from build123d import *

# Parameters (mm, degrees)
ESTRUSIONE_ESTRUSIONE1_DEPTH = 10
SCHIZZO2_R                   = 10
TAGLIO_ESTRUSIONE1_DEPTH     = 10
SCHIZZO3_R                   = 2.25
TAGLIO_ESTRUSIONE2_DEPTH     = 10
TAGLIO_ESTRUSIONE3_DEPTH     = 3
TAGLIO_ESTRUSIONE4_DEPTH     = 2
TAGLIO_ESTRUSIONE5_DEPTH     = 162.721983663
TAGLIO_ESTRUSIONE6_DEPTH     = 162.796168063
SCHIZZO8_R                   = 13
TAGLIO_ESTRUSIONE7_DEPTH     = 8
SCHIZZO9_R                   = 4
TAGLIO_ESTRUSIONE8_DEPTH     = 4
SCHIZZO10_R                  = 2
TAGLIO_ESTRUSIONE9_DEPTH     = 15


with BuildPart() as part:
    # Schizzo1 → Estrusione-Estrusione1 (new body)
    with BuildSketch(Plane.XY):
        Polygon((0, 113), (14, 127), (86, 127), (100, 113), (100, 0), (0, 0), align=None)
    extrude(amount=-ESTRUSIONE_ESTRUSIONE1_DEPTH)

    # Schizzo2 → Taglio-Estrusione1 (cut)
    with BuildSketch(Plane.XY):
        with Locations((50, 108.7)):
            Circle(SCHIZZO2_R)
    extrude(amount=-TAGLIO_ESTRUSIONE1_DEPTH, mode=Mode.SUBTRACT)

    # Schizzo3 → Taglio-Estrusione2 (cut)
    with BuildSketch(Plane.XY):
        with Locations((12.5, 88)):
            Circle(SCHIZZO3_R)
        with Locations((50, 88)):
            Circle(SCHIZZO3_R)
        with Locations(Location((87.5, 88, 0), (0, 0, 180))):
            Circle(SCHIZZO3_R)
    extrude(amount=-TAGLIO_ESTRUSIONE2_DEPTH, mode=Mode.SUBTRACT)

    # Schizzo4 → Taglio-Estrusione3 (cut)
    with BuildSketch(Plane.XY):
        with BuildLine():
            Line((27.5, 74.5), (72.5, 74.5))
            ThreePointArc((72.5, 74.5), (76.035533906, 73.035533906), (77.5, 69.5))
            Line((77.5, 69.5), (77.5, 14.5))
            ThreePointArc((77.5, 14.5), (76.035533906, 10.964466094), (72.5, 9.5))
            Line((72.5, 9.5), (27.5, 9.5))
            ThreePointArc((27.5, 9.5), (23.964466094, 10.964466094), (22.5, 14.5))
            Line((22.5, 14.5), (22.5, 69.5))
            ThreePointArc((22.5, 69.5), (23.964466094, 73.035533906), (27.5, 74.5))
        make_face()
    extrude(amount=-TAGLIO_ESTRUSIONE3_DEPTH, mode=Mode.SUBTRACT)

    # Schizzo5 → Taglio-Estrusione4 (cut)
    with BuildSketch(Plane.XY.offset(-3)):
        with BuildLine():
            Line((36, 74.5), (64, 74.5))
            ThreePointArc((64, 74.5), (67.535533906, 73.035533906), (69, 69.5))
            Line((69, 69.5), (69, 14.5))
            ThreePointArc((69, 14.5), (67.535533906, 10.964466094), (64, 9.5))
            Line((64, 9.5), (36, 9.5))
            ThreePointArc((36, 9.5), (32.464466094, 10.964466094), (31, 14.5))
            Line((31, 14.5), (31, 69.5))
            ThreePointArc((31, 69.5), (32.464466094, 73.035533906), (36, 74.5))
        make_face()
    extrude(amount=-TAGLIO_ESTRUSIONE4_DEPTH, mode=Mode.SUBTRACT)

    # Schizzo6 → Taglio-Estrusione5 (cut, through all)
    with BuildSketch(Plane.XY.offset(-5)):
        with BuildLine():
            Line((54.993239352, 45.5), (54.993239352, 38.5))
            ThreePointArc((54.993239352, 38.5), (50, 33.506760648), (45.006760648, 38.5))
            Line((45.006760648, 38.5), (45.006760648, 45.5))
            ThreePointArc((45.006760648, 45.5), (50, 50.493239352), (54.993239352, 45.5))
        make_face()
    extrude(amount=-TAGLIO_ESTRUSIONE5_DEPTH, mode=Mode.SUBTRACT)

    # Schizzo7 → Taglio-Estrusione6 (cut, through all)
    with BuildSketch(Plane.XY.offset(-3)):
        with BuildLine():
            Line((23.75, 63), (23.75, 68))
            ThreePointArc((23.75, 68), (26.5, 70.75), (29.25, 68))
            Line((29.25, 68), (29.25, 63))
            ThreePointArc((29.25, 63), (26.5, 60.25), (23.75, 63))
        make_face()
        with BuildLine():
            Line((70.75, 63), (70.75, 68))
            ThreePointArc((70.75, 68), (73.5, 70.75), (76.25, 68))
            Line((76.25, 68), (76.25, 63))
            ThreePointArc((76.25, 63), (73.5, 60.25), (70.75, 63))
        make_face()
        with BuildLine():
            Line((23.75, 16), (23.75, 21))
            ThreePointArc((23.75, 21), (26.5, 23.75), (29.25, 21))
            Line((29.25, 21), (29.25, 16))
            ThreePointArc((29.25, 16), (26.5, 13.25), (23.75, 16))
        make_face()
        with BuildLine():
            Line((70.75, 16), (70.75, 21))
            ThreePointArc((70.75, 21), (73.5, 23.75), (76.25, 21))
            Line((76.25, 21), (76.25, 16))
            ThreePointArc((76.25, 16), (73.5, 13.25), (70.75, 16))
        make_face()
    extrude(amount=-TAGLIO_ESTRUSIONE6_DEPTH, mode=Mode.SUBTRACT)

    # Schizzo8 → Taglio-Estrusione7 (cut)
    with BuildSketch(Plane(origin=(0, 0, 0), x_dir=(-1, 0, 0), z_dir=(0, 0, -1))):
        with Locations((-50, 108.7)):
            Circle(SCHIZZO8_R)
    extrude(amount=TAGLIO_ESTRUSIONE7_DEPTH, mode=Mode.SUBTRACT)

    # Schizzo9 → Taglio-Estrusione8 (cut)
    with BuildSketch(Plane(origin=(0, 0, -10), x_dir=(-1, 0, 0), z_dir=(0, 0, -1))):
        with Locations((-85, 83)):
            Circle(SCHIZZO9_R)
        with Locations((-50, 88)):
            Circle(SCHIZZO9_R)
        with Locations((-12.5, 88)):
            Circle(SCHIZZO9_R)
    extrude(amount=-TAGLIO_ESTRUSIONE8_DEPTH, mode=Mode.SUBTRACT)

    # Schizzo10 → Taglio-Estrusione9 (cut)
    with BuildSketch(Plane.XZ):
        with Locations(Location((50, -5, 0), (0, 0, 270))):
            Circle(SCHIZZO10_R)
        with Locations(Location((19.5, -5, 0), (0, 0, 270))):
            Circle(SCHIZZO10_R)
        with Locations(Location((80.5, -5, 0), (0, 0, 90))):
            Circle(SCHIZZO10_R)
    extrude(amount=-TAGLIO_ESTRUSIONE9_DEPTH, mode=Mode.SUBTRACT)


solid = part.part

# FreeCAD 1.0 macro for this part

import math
import FreeCAD as App
import Part
import Sketcher
from FreeCAD import Vector
Q = App.Units.Quantity

doc = App.newDocument("Part")
params = doc.addObject("Spreadsheet::Sheet", "Params")
for row, (alias, value) in enumerate([
    ("sketch1_width", "100 mm"),
    ("sketch1_width2", "72 mm"),
    ("sketch1_height", "113 mm"),
    ("pad1_length", "10 mm"),
    ("sketch2_diameter", "20 mm"),
    ("pocket1_length", "10 mm"),
    ("sketch3_diameter", "4.5 mm"),
    ("pocket2_length", "10 mm"),
    ("sketch4_radius", "5 mm"),
    ("sketch4_width", "45 mm"),
    ("sketch4_height", "55 mm"),
    ("pocket3_length", "3 mm"),
    ("sketch5_radius", "5 mm"),
    ("sketch5_width", "28 mm"),
    ("sketch5_height", "55 mm"),
    ("pocket4_length", "2 mm"),
    ("sketch6_height", "7 mm"),
    ("sketch7_height", "5 mm"),
    ("sketch7_radius", "2.75 mm"),
    ("sketch8_diameter", "26 mm"),
    ("pocket7_length", "8 mm"),
    ("sketch9_diameter", "8 mm"),
    ("pocket8_length", "4 mm"),
    ("sketch10_diameter", "4 mm"),
    ("pocket9_length", "15 mm"),
], start=1):
    params.set(f"A{row}", alias)
    params.set(f"B{row}", "=" + value)
    params.setAlias(f"B{row}", alias)

body = doc.addObject("PartDesign::Body", "Body")

# Sketch on XY plane
sketch1 = body.newObject("Sketcher::SketchObject", "Sketch")
sketch1.AttachmentSupport = (doc.getObject("XY_Plane"), [""])
sketch1.MapMode = "FlatFace"
sketch1.addGeometry([
    Part.LineSegment(Vector(14, 127, 0), Vector(0, 113, 0)),  # 0
    Part.LineSegment(Vector(0, 113, 0), Vector(0, 0, 0)),  # 1
    Part.LineSegment(Vector(0, 0, 0), Vector(100, 0, 0)),  # 2
    Part.LineSegment(Vector(100, 0, 0), Vector(100, 113, 0)),  # 3
    Part.LineSegment(Vector(100, 113, 0), Vector(86, 127, 0)),  # 4
    Part.LineSegment(Vector(86, 127, 0), Vector(14, 127, 0)),  # 5
], False)
sketch1.addConstraint([
    Sketcher.Constraint("Coincident", 0, 2, 1, 1),
    Sketcher.Constraint("Coincident", 1, 2, 2, 1),
    Sketcher.Constraint("Coincident", 2, 2, 3, 1),
    Sketcher.Constraint("Coincident", 3, 2, 4, 1),
    Sketcher.Constraint("Coincident", 4, 2, 5, 1),
    Sketcher.Constraint("Coincident", 5, 2, 0, 1),
    Sketcher.Constraint("Vertical", 1),
    Sketcher.Constraint("Horizontal", 2),
    Sketcher.Constraint("Vertical", 3),
    Sketcher.Constraint("Horizontal", 5),
    Sketcher.Constraint("Coincident", 1, 2, -1, 1),
    Sketcher.Constraint("Perpendicular", 0, 4),
    Sketcher.Constraint("Horizontal", 0, 2, 3, 2),
    Sketcher.Constraint("Equal", 0, 4),
    Sketcher.Constraint("DistanceX", 2, 1, 2, 2, Q("100 mm")),
    Sketcher.Constraint("DistanceX", 5, 2, 5, 1, Q("72 mm")),
    Sketcher.Constraint("DistanceY", 1, 2, 1, 1, Q("113 mm")),
])
sketch1.setExpression("Constraints[14]", "Params.sketch1_width")
sketch1.setExpression("Constraints[15]", "Params.sketch1_width2")
sketch1.setExpression("Constraints[16]", "Params.sketch1_height")
pad1 = body.newObject("PartDesign::Pad", "Pad")
pad1.Profile = sketch1
pad1.setExpression("Length", "Params.pad1_length")
pad1.Reversed = True

# Sketch on XY plane
sketch2 = body.newObject("Sketcher::SketchObject", "Sketch001")
sketch2.AttachmentSupport = (doc.getObject("XY_Plane"), [""])
sketch2.MapMode = "FlatFace"
sketch2.addGeometry(Part.Circle(Vector(50, 109, 0), Vector(0, 0, 1), 10), False)
sketch2.addConstraint([
    Sketcher.Constraint("Diameter", 0, Q("20 mm")),
    Sketcher.Constraint("DistanceX", -1, 1, 0, 3, Q("50 mm")),
    Sketcher.Constraint("DistanceY", -1, 1, 0, 3, Q("108.7 mm")),
])
sketch2.setExpression("Constraints[0]", "Params.sketch2_diameter")
pocket1 = body.newObject("PartDesign::Pocket", "Pocket")
pocket1.Profile = sketch2
pocket1.setExpression("Length", "Params.pocket1_length")

# Sketch on XY plane
sketch3 = body.newObject("Sketcher::SketchObject", "Sketch002")
sketch3.AttachmentSupport = (doc.getObject("XY_Plane"), [""])
sketch3.MapMode = "FlatFace"
sketch3.addGeometry([
    Part.Circle(Vector(12.5, 88, 0), Vector(0, 0, 1), 2.2),
    Part.Circle(Vector(50, 88, 0), Vector(0, 0, 1), 2.2),
    Part.Circle(Vector(87.5, 88, 0), Vector(0, 0, 1), 2.2),
], False)
sketch3.addConstraint([
    Sketcher.Constraint("Equal", 0, 1),
    Sketcher.Constraint("Equal", 1, 2),
    Sketcher.Constraint("Horizontal", 0, 3, 1, 3),
    Sketcher.Constraint("Horizontal", 1, 3, 2, 3),
    Sketcher.Constraint("Diameter", 0, Q("4.5 mm")),
    Sketcher.Constraint("DistanceY", -1, 1, 0, 3, Q("88 mm")),
    Sketcher.Constraint("DistanceX", -1, 1, 1, 3, Q("50 mm")),
    Sketcher.Constraint("DistanceX", 0, 3, 2, 3, Q("75 mm")),
    Sketcher.Constraint("DistanceX", -1, 1, 0, 3, Q("12.5 mm")),
])
sketch3.setExpression("Constraints[4]", "Params.sketch3_diameter")
pocket2 = body.newObject("PartDesign::Pocket", "Pocket001")
pocket2.Profile = sketch3
pocket2.setExpression("Length", "Params.pocket2_length")

# Sketch on XY plane
sketch4 = body.newObject("Sketcher::SketchObject", "Sketch003")
sketch4.AttachmentSupport = (doc.getObject("XY_Plane"), [""])
sketch4.MapMode = "FlatFace"
sketch4.addGeometry([
    Part.LineSegment(Vector(72, 74, 0), Vector(28, 74, 0)),  # 0
    Part.ArcOfCircle(Part.Circle(Vector(28, 70, 0), Vector(0, 0, 1), 5), math.radians(90), math.radians(180)),  # 1
    Part.LineSegment(Vector(22, 70, 0), Vector(22, 14, 0)),  # 2
    Part.ArcOfCircle(Part.Circle(Vector(28, 14, 0), Vector(0, 0, 1), 5), math.radians(180), math.radians(270)),  # 3
    Part.LineSegment(Vector(28, 10, 0), Vector(72, 10, 0)),  # 4
    Part.ArcOfCircle(Part.Circle(Vector(72, 14, 0), Vector(0, 0, 1), 5), math.radians(-90), math.radians(0)),  # 5
    Part.LineSegment(Vector(78, 14, 0), Vector(78, 70, 0)),  # 6
    Part.ArcOfCircle(Part.Circle(Vector(72, 70, 0), Vector(0, 0, 1), 5), math.radians(0), math.radians(90)),  # 7
], False)
sketch4.addConstraint([
    Sketcher.Constraint("Tangent", 0, 2, 1, 1),
    Sketcher.Constraint("Tangent", 1, 2, 2, 1),
    Sketcher.Constraint("Tangent", 2, 2, 3, 1),
    Sketcher.Constraint("Tangent", 3, 2, 4, 1),
    Sketcher.Constraint("Tangent", 4, 2, 5, 1),
    Sketcher.Constraint("Tangent", 5, 2, 6, 1),
    Sketcher.Constraint("Tangent", 6, 2, 7, 1),
    Sketcher.Constraint("Tangent", 7, 2, 0, 1),
    Sketcher.Constraint("Horizontal", 0),
    Sketcher.Constraint("Vertical", 2),
    Sketcher.Constraint("Horizontal", 4),
    Sketcher.Constraint("Vertical", 6),
    Sketcher.Constraint("Equal", 1, 3),
    Sketcher.Constraint("Equal", 3, 5),
    Sketcher.Constraint("Equal", 5, 7),
    Sketcher.Constraint("Radius", 1, Q("5 mm")),
    Sketcher.Constraint("DistanceX", 0, 2, 0, 1, Q("45 mm")),
    Sketcher.Constraint("DistanceY", 2, 2, 2, 1, Q("55 mm")),
    Sketcher.Constraint("DistanceX", -1, 1, 1, 3, Q("27.5 mm")),
    Sketcher.Constraint("DistanceY", -1, 1, 1, 3, Q("69.5 mm")),
])
sketch4.setExpression("Constraints[15]", "Params.sketch4_radius")
sketch4.setExpression("Constraints[16]", "Params.sketch4_width")
sketch4.setExpression("Constraints[17]", "Params.sketch4_height")
pocket3 = body.newObject("PartDesign::Pocket", "Pocket002")
pocket3.Profile = sketch4
pocket3.setExpression("Length", "Params.pocket3_length")

# Sketch on XY plane
sketch5 = body.newObject("Sketcher::SketchObject", "Sketch004")
sketch5.AttachmentSupport = (doc.getObject("XY_Plane"), [""])
sketch5.MapMode = "FlatFace"
sketch5.AttachmentOffset = App.Placement(Vector(0, 0, -3), App.Rotation())
sketch5.addGeometry([
    Part.LineSegment(Vector(64, 74, 0), Vector(36, 74, 0)),  # 0
    Part.ArcOfCircle(Part.Circle(Vector(36, 70, 0), Vector(0, 0, 1), 5), math.radians(90), math.radians(180)),  # 1
    Part.LineSegment(Vector(31, 70, 0), Vector(31, 14, 0)),  # 2
    Part.ArcOfCircle(Part.Circle(Vector(36, 14, 0), Vector(0, 0, 1), 5), math.radians(180), math.radians(270)),  # 3
    Part.LineSegment(Vector(36, 10, 0), Vector(64, 10, 0)),  # 4
    Part.ArcOfCircle(Part.Circle(Vector(64, 14, 0), Vector(0, 0, 1), 5), math.radians(-90), math.radians(0)),  # 5
    Part.LineSegment(Vector(69, 14, 0), Vector(69, 70, 0)),  # 6
    Part.ArcOfCircle(Part.Circle(Vector(64, 70, 0), Vector(0, 0, 1), 5), math.radians(0), math.radians(90)),  # 7
], False)
sketch5.addConstraint([
    Sketcher.Constraint("Tangent", 0, 2, 1, 1),
    Sketcher.Constraint("Tangent", 1, 2, 2, 1),
    Sketcher.Constraint("Tangent", 2, 2, 3, 1),
    Sketcher.Constraint("Tangent", 3, 2, 4, 1),
    Sketcher.Constraint("Tangent", 4, 2, 5, 1),
    Sketcher.Constraint("Tangent", 5, 2, 6, 1),
    Sketcher.Constraint("Tangent", 6, 2, 7, 1),
    Sketcher.Constraint("Tangent", 7, 2, 0, 1),
    Sketcher.Constraint("Horizontal", 0),
    Sketcher.Constraint("Vertical", 2),
    Sketcher.Constraint("Horizontal", 4),
    Sketcher.Constraint("Vertical", 6),
    Sketcher.Constraint("Equal", 1, 3),
    Sketcher.Constraint("Equal", 3, 5),
    Sketcher.Constraint("Equal", 5, 7),
    Sketcher.Constraint("Radius", 1, Q("5 mm")),
    Sketcher.Constraint("DistanceX", 0, 2, 0, 1, Q("28 mm")),
    Sketcher.Constraint("DistanceY", 2, 2, 2, 1, Q("55 mm")),
    Sketcher.Constraint("DistanceX", -1, 1, 1, 3, Q("36 mm")),
    Sketcher.Constraint("DistanceY", -1, 1, 1, 3, Q("69.5 mm")),
])
sketch5.setExpression("Constraints[15]", "Params.sketch5_radius")
sketch5.setExpression("Constraints[16]", "Params.sketch5_width")
sketch5.setExpression("Constraints[17]", "Params.sketch5_height")
pocket4 = body.newObject("PartDesign::Pocket", "Pocket003")
pocket4.Profile = sketch5
pocket4.setExpression("Length", "Params.pocket4_length")

# Sketch on XY plane
sketch6 = body.newObject("Sketcher::SketchObject", "Sketch005")
sketch6.AttachmentSupport = (doc.getObject("XY_Plane"), [""])
sketch6.MapMode = "FlatFace"
sketch6.AttachmentOffset = App.Placement(Vector(0, 0, -5), App.Rotation())
sketch6.addGeometry([
    Part.LineSegment(Vector(55, 38.5, 0), Vector(55, 45.5, 0)),
    Part.ArcOfCircle(Part.Circle(Vector(50, 45.5, 0), Vector(0, 0, 1), 5), math.radians(0), math.radians(180)),
    Part.LineSegment(Vector(45, 45.5, 0), Vector(45, 38.5, 0)),
    Part.ArcOfCircle(Part.Circle(Vector(50, 38.5, 0), Vector(0, 0, 1), 5), math.radians(180), math.radians(360)),
], False)
sketch6.addConstraint([
    Sketcher.Constraint("Tangent", 0, 2, 1, 1),
    Sketcher.Constraint("Tangent", 1, 2, 2, 1),
    Sketcher.Constraint("Tangent", 2, 2, 3, 1),
    Sketcher.Constraint("Tangent", 3, 2, 0, 1),
    Sketcher.Constraint("Vertical", 0),
    Sketcher.Constraint("Vertical", 2),
    Sketcher.Constraint("DistanceY", 0, 1, 0, 2, Q("7 mm")),
    Sketcher.Constraint("DistanceX", -1, 1, 1, 3, Q("50 mm")),
    Sketcher.Constraint("DistanceY", -1, 1, 1, 3, Q("45.5 mm")),
    Sketcher.Constraint("Radius", 1, Q("4.993239 mm")),
])
sketch6.setExpression("Constraints[6]", "Params.sketch6_height")
pocket5 = body.newObject("PartDesign::Pocket", "Pocket004")
pocket5.Profile = sketch6
pocket5.Type = "ThroughAll"

# Sketch on XY plane
sketch7 = body.newObject("Sketcher::SketchObject", "Sketch006")
sketch7.AttachmentSupport = (doc.getObject("XY_Plane"), [""])
sketch7.MapMode = "FlatFace"
sketch7.AttachmentOffset = App.Placement(Vector(0, 0, -3), App.Rotation())
sketch7.addGeometry([
    Part.LineSegment(Vector(23.8, 68, 0), Vector(23.8, 63, 0)),  # 0
    Part.ArcOfCircle(Part.Circle(Vector(26.5, 63, 0), Vector(0, 0, 1), 2.8), math.radians(180), math.radians(360)),  # 1
    Part.LineSegment(Vector(29.2, 63, 0), Vector(29.2, 68, 0)),  # 2
    Part.ArcOfCircle(Part.Circle(Vector(26.5, 68, 0), Vector(0, 0, 1), 2.8), math.radians(0), math.radians(180)),  # 3
    Part.LineSegment(Vector(70.8, 68, 0), Vector(70.8, 63, 0)),  # 4
    Part.ArcOfCircle(Part.Circle(Vector(73.5, 63, 0), Vector(0, 0, 1), 2.8), math.radians(180), math.radians(360)),  # 5
    Part.LineSegment(Vector(76.2, 63, 0), Vector(76.2, 68, 0)),  # 6
    Part.ArcOfCircle(Part.Circle(Vector(73.5, 68, 0), Vector(0, 0, 1), 2.8), math.radians(0), math.radians(180)),  # 7
    Part.LineSegment(Vector(23.8, 21, 0), Vector(23.8, 16, 0)),  # 8
    Part.ArcOfCircle(Part.Circle(Vector(26.5, 16, 0), Vector(0, 0, 1), 2.8), math.radians(180), math.radians(360)),  # 9
    Part.LineSegment(Vector(29.2, 16, 0), Vector(29.2, 21, 0)),  # 10
    Part.ArcOfCircle(Part.Circle(Vector(26.5, 21, 0), Vector(0, 0, 1), 2.8), math.radians(0), math.radians(180)),  # 11
    Part.LineSegment(Vector(70.8, 21, 0), Vector(70.8, 16, 0)),  # 12
    Part.ArcOfCircle(Part.Circle(Vector(73.5, 16, 0), Vector(0, 0, 1), 2.8), math.radians(180), math.radians(360)),  # 13
    Part.LineSegment(Vector(76.2, 16, 0), Vector(76.2, 21, 0)),  # 14
    Part.ArcOfCircle(Part.Circle(Vector(73.5, 21, 0), Vector(0, 0, 1), 2.8), math.radians(0), math.radians(180)),  # 15
], False)
sketch7.addConstraint([
    Sketcher.Constraint("Tangent", 0, 2, 1, 1),
    Sketcher.Constraint("Tangent", 1, 2, 2, 1),
    Sketcher.Constraint("Tangent", 2, 2, 3, 1),
    Sketcher.Constraint("Tangent", 3, 2, 0, 1),
    Sketcher.Constraint("Tangent", 4, 2, 5, 1),
    Sketcher.Constraint("Tangent", 5, 2, 6, 1),
    Sketcher.Constraint("Tangent", 6, 2, 7, 1),
    Sketcher.Constraint("Tangent", 7, 2, 4, 1),
    Sketcher.Constraint("Tangent", 8, 2, 9, 1),
    Sketcher.Constraint("Tangent", 9, 2, 10, 1),
    Sketcher.Constraint("Tangent", 10, 2, 11, 1),
    Sketcher.Constraint("Tangent", 11, 2, 8, 1),
    Sketcher.Constraint("Tangent", 12, 2, 13, 1),
    Sketcher.Constraint("Tangent", 13, 2, 14, 1),
    Sketcher.Constraint("Tangent", 14, 2, 15, 1),
    Sketcher.Constraint("Tangent", 15, 2, 12, 1),
    Sketcher.Constraint("Vertical", 0),
    Sketcher.Constraint("Vertical", 2),
    Sketcher.Constraint("Vertical", 4),
    Sketcher.Constraint("Vertical", 6),
    Sketcher.Constraint("Vertical", 8),
    Sketcher.Constraint("Vertical", 10),
    Sketcher.Constraint("Vertical", 12),
    Sketcher.Constraint("Vertical", 14),
    Sketcher.Constraint("Equal", 3, 5),
    Sketcher.Constraint("Equal", 7, 9),
    Sketcher.Constraint("Equal", 11, 13),
    Sketcher.Constraint("Horizontal", 1, 3, 5, 3),
    Sketcher.Constraint("Horizontal", 3, 3, 7, 3),
    Sketcher.Constraint("Horizontal", 9, 3, 13, 3),
    Sketcher.Constraint("Horizontal", 11, 3, 15, 3),
    Sketcher.Constraint("Vertical", 3, 3, 9, 3),
    Sketcher.Constraint("Vertical", 7, 3, 13, 3),
    Sketcher.Constraint("Equal", 6, 8),
    Sketcher.Constraint("DistanceY", 0, 2, 0, 1, Q("5 mm")),
    Sketcher.Constraint("Radius", 1, Q("2.75 mm")),
    Sketcher.Constraint("DistanceY", -1, 1, 1, 3, Q("63 mm")),
    Sketcher.Constraint("DistanceY", -1, 1, 9, 3, Q("16 mm")),
    Sketcher.Constraint("DistanceX", 1, 3, 5, 3, Q("47 mm")),
    Sketcher.Constraint("DistanceX", -1, 1, 1, 3, Q("26.5 mm")),
])
sketch7.setExpression("Constraints[34]", "Params.sketch7_height")
sketch7.setExpression("Constraints[35]", "Params.sketch7_radius")
pocket6 = body.newObject("PartDesign::Pocket", "Pocket005")
pocket6.Profile = sketch7
pocket6.Type = "ThroughAll"

# Sketch on XY plane
sketch8 = body.newObject("Sketcher::SketchObject", "Sketch007")
sketch8.AttachmentSupport = (doc.getObject("XY_Plane"), [""])
sketch8.MapMode = "FlatFace"
sketch8.addGeometry(Part.Circle(Vector(50, 109, 0), Vector(0, 0, 1), 13), False)
sketch8.addConstraint([
    Sketcher.Constraint("Diameter", 0, Q("26 mm")),
    Sketcher.Constraint("DistanceX", -1, 1, 0, 3, Q("50 mm")),
    Sketcher.Constraint("DistanceY", -1, 1, 0, 3, Q("108.7 mm")),
])
sketch8.setExpression("Constraints[0]", "Params.sketch8_diameter")
pocket7 = body.newObject("PartDesign::Pocket", "Pocket006")
pocket7.Profile = sketch8
pocket7.setExpression("Length", "Params.pocket7_length")

# Sketch on XY plane
sketch9 = body.newObject("Sketcher::SketchObject", "Sketch008")
sketch9.AttachmentSupport = (doc.getObject("XY_Plane"), [""])
sketch9.MapMode = "FlatFace"
sketch9.AttachmentOffset = App.Placement(Vector(0, 0, -10), App.Rotation())
sketch9.addGeometry([
    Part.Circle(Vector(85, 83, 0), Vector(0, 0, 1), 4),
    Part.Circle(Vector(50, 88, 0), Vector(0, 0, 1), 4),
    Part.Circle(Vector(12.5, 88, 0), Vector(0, 0, 1), 4),
], False)
sketch9.addConstraint([
    Sketcher.Constraint("Equal", 0, 1),
    Sketcher.Constraint("Equal", 1, 2),
    Sketcher.Constraint("Horizontal", 1, 3, 2, 3),
    Sketcher.Constraint("Diameter", 0, Q("8 mm")),
    Sketcher.Constraint("DistanceX", -1, 1, 0, 3, Q("85 mm")),
    Sketcher.Constraint("DistanceY", -1, 1, 0, 3, Q("83 mm")),
    Sketcher.Constraint("DistanceX", -1, 1, 1, 3, Q("50 mm")),
    Sketcher.Constraint("DistanceY", -1, 1, 1, 3, Q("88 mm")),
    Sketcher.Constraint("DistanceX", -1, 1, 2, 3, Q("12.5 mm")),
])
sketch9.setExpression("Constraints[3]", "Params.sketch9_diameter")
pocket8 = body.newObject("PartDesign::Pocket", "Pocket007")
pocket8.Profile = sketch9
pocket8.setExpression("Length", "Params.pocket8_length")
pocket8.Reversed = True

# Sketch on XZ plane
sketch10 = body.newObject("Sketcher::SketchObject", "Sketch009")
sketch10.AttachmentSupport = (doc.getObject("XZ_Plane"), [""])
sketch10.MapMode = "FlatFace"
sketch10.addGeometry([
    Part.Circle(Vector(50, -5, 0), Vector(0, 0, 1), 2),
    Part.Circle(Vector(19.5, -5, 0), Vector(0, 0, 1), 2),
    Part.Circle(Vector(80.5, -5, 0), Vector(0, 0, 1), 2),
], False)
sketch10.addConstraint([
    Sketcher.Constraint("Equal", 0, 1),
    Sketcher.Constraint("Equal", 1, 2),
    Sketcher.Constraint("Horizontal", 0, 3, 1, 3),
    Sketcher.Constraint("Horizontal", 1, 3, 2, 3),
    Sketcher.Constraint("Diameter", 0, Q("4 mm")),
    Sketcher.Constraint("DistanceX", -1, 1, 0, 3, Q("50 mm")),
    Sketcher.Constraint("DistanceY", 0, 3, -1, 1, Q("5 mm")),
    Sketcher.Constraint("DistanceX", 1, 3, 2, 3, Q("61 mm")),
    Sketcher.Constraint("DistanceX", -1, 1, 1, 3, Q("19.5 mm")),
])
sketch10.setExpression("Constraints[4]", "Params.sketch10_diameter")
pocket9 = body.newObject("PartDesign::Pocket", "Pocket008")
pocket9.Profile = sketch10
pocket9.setExpression("Length", "Params.pocket9_length")

doc.recompute()
